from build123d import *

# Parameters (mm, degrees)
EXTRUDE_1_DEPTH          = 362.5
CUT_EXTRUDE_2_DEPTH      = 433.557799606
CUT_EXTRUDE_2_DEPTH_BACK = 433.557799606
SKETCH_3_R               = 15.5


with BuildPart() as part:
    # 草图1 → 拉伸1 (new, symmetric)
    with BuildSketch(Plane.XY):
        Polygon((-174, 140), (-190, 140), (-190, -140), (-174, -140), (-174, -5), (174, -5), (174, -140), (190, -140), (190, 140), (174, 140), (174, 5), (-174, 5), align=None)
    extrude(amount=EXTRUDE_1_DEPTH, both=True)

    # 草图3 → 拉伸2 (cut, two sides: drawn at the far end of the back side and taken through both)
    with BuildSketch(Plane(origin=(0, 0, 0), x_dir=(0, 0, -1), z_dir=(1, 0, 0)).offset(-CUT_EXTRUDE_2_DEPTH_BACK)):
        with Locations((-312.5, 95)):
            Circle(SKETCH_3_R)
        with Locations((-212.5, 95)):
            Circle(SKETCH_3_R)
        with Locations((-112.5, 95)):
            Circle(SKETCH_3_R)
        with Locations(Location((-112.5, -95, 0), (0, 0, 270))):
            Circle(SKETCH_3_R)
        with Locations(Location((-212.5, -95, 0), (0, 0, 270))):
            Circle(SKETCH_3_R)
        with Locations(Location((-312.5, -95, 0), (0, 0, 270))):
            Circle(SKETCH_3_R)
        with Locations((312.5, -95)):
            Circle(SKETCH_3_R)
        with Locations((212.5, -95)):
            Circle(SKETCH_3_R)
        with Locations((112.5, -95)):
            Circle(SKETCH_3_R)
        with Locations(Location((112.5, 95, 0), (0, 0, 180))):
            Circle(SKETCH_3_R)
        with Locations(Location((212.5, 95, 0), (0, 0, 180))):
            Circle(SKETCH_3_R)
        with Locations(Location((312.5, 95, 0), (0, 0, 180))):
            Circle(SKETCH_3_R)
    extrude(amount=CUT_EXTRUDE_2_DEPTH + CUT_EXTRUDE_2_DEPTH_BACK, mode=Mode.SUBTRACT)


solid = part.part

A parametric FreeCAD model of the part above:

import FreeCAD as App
import Part
import Sketcher

V = App.Vector
Q = App.Units.Quantity

doc = App.newDocument("Part")
body = doc.addObject("PartDesign::Body", "Body")

# Sketch on XY plane
sketch1 = body.newObject("Sketcher::SketchObject", "Sketch")
sketch1.AttachmentSupport = (doc.getObject("XY_Plane"), [""])
sketch1.MapMode = "FlatFace"
sketch1.addGeometry(Part.LineSegment(V(-174, 140, 0), V(-190, 140, 0)), False)
sketch1.addGeometry(Part.LineSegment(V(-190, 140, 0), V(-190, -140, 0)), False)
sketch1.addGeometry(Part.LineSegment(V(-190, -140, 0), V(-174, -140, 0)), False)
sketch1.addGeometry(Part.LineSegment(V(-174, -140, 0), V(-174, -5, 0)), False)
sketch1.addGeometry(Part.LineSegment(V(-174, -5, 0), V(174, -5, 0)), False)
sketch1.addGeometry(Part.LineSegment(V(174, -5, 0), V(174, -140, 0)), False)
sketch1.addGeometry(Part.LineSegment(V(174, -140, 0), V(190, -140, 0)), False)
sketch1.addGeometry(Part.LineSegment(V(190, -140, 0), V(190, 140, 0)), False)
sketch1.addGeometry(Part.LineSegment(V(190, 140, 0), V(174, 140, 0)), False)
sketch1.addGeometry(Part.LineSegment(V(174, 140, 0), V(174, 5, 0)), False)
sketch1.addGeometry(Part.LineSegment(V(174, 5, 0), V(-174, 5, 0)), False)
sketch1.addGeometry(Part.LineSegment(V(-174, 5, 0), V(-174, 140, 0)), False)
sketch1.addConstraint(Sketcher.Constraint("Coincident", 0, 2, 1, 1))
sketch1.addConstraint(Sketcher.Constraint("Coincident", 1, 2, 2, 1))
sketch1.addConstraint(Sketcher.Constraint("Coincident", 2, 2, 3, 1))
sketch1.addConstraint(Sketcher.Constraint("Coincident", 3, 2, 4, 1))
sketch1.addConstraint(Sketcher.Constraint("Coincident", 4, 2, 5, 1))
sketch1.addConstraint(Sketcher.Constraint("Coincident", 5, 2, 6, 1))
sketch1.addConstraint(Sketcher.Constraint("Coincident", 6, 2, 7, 1))
sketch1.addConstraint(Sketcher.Constraint("Coincident", 7, 2, 8, 1))
sketch1.addConstraint(Sketcher.Constraint("Coincident", 8, 2, 9, 1))
sketch1.addConstraint(Sketcher.Constraint("Coincident", 9, 2, 10, 1))
sketch1.addConstraint(Sketcher.Constraint("Coincident", 10, 2, 11, 1))
sketch1.addConstraint(Sketcher.Constraint("Coincident", 11, 2, 0, 1))
sketch1.addConstraint(Sketcher.Constraint("Horizontal", 0))
sketch1.addConstraint(Sketcher.Constraint("Vertical", 1))
sketch1.addConstraint(Sketcher.Constraint("Horizontal", 2))
sketch1.addConstraint(Sketcher.Constraint("Vertical", 3))
sketch1.addConstraint(Sketcher.Constraint("Horizontal", 4))
sketch1.addConstraint(Sketcher.Constraint("Vertical", 5))
sketch1.addConstraint(Sketcher.Constraint("Horizontal", 6))
sketch1.addConstraint(Sketcher.Constraint("Vertical", 7))
sketch1.addConstraint(Sketcher.Constraint("Horizontal", 8))
sketch1.addConstraint(Sketcher.Constraint("Vertical", 9))
sketch1.addConstraint(Sketcher.Constraint("Horizontal", 10))
sketch1.addConstraint(Sketcher.Constraint("Vertical", 11))
sketch1.addConstraint(Sketcher.Constraint("Symmetric", 0, 2, 6, 2, -1, 1))
sketch1.addConstraint(Sketcher.Constraint("Symmetric", 2, 2, 8, 2, -1, 1))
sketch1.addConstraint(Sketcher.Constraint("Symmetric", 4, 2, 10, 2, -1, 1))
sketch1.addConstraint(Sketcher.Constraint("Symmetric", 2, 2, 5, 2, -2))
sketch1.addConstraint(Sketcher.Constraint("DistanceX", 0, 2, 0, 1, Q("16 mm")))
sketch1.addConstraint(Sketcher.Constraint("DistanceX", 4, 1, 4, 2, Q("348 mm")))
sketch1.addConstraint(Sketcher.Constraint("DistanceY", 1, 2, 1, 1, Q("280 mm")))
sketch1.addConstraint(Sketcher.Constraint("DistanceY", 3, 1, 3, 2, Q("135 mm")))
pad1 = body.newObject("PartDesign::Pad", "Pad")
pad1.Profile = sketch1
pad1.Length = 725
pad1.Midplane = True

# Sketch on YZ plane
sketch2 = body.newObject("Sketcher::SketchObject", "Sketch001")
sketch2.AttachmentSupport = (doc.getObject("YZ_Plane"), [""])
sketch2.MapMode = "FlatFace"
sketch2.addGeometry(Part.Circle(V(95, 312, 0), V(0, 0, 1), 16), False)
sketch2.addGeometry(Part.Circle(V(95, 212, 0), V(0, 0, 1), 16), False)
sketch2.addGeometry(Part.Circle(V(95, 112, 0), V(0, 0, 1), 16), False)
sketch2.addGeometry(Part.Circle(V(-95, 112, 0), V(0, 0, 1), 16), False)
sketch2.addGeometry(Part.Circle(V(-95, 212, 0), V(0, 0, 1), 16), False)
sketch2.addGeometry(Part.Circle(V(-95, 312, 0), V(0, 0, 1), 16), False)
sketch2.addGeometry(Part.Circle(V(-95, -312, 0), V(0, 0, 1), 16), False)
sketch2.addGeometry(Part.Circle(V(-95, -212, 0), V(0, 0, 1), 16), False)
sketch2.addGeometry(Part.Circle(V(-95, -112, 0), V(0, 0, 1), 16), False)
sketch2.addGeometry(Part.Circle(V(95, -112, 0), V(0, 0, 1), 16), False)
sketch2.addGeometry(Part.Circle(V(95, -212, 0), V(0, 0, 1), 16), False)
sketch2.addGeometry(Part.Circle(V(95, -312, 0), V(0, 0, 1), 16), False)
sketch2.addConstraint(Sketcher.Constraint("Equal", 0, 1))
sketch2.addConstraint(Sketcher.Constraint("Equal", 1, 2))
sketch2.addConstraint(Sketcher.Constraint("Equal", 2, 3))
sketch2.addConstraint(Sketcher.Constraint("Equal", 3, 4))
sketch2.addConstraint(Sketcher.Constraint("Equal", 4, 5))
sketch2.addConstraint(Sketcher.Constraint("Equal", 5, 6))
sketch2.addConstraint(Sketcher.Constraint("Equal", 6, 7))
sketch2.addConstraint(Sketcher.Constraint("Equal", 7, 8))
sketch2.addConstraint(Sketcher.Constraint("Equal", 8, 9))
sketch2.addConstraint(Sketcher.Constraint("Equal", 9, 10))
sketch2.addConstraint(Sketcher.Constraint("Equal", 10, 11))
sketch2.addConstraint(Sketcher.Constraint("Symmetric", 0, 3, 6, 3, -1, 1))
sketch2.addConstraint(Sketcher.Constraint("Symmetric", 1, 3, 7, 3, -1, 1))
sketch2.addConstraint(Sketcher.Constraint("Symmetric", 2, 3, 8, 3, -1, 1))
sketch2.addConstraint(Sketcher.Constraint("Symmetric", 3, 3, 9, 3, -1, 1))
sketch2.addConstraint(Sketcher.Constraint("Symmetric", 4, 3, 10, 3, -1, 1))
sketch2.addConstraint(Sketcher.Constraint("Symmetric", 5, 3, 11, 3, -1, 1))
sketch2.addConstraint(Sketcher.Constraint("Symmetric", 2, 3, 3, 3, -2))
sketch2.addConstraint(Sketcher.Constraint("Symmetric", 1, 3, 4, 3, -2))
sketch2.addConstraint(Sketcher.Constraint("Symmetric", 0, 3, 5, 3, -2))
sketch2.addConstraint(Sketcher.Constraint("Vertical", 0, 3, 1, 3))
sketch2.addConstraint(Sketcher.Constraint("Vertical", 1, 3, 2, 3))
sketch2.addConstraint(Sketcher.Constraint("Diameter", 0, Q("31 mm")))
sketch2.addConstraint(Sketcher.Constraint("DistanceX", -1, 1, 0, 3, Q("95 mm")))
sketch2.addConstraint(Sketcher.Constraint("DistanceY", 1, 3, 0, 3, Q("100 mm")))
sketch2.addConstraint(Sketcher.Constraint("DistanceY", 2, 3, 1, 3, Q("100 mm")))
sketch2.addConstraint(Sketcher.Constraint("DistanceY", 6, 3, 3, 3, Q("425 mm")))
pocket1 = body.newObject("PartDesign::Pocket", "Pocket")
pocket1.Profile = sketch2
pocket1.Type = "ThroughAll"
pocket1.Midplane = True

doc.recompute()
